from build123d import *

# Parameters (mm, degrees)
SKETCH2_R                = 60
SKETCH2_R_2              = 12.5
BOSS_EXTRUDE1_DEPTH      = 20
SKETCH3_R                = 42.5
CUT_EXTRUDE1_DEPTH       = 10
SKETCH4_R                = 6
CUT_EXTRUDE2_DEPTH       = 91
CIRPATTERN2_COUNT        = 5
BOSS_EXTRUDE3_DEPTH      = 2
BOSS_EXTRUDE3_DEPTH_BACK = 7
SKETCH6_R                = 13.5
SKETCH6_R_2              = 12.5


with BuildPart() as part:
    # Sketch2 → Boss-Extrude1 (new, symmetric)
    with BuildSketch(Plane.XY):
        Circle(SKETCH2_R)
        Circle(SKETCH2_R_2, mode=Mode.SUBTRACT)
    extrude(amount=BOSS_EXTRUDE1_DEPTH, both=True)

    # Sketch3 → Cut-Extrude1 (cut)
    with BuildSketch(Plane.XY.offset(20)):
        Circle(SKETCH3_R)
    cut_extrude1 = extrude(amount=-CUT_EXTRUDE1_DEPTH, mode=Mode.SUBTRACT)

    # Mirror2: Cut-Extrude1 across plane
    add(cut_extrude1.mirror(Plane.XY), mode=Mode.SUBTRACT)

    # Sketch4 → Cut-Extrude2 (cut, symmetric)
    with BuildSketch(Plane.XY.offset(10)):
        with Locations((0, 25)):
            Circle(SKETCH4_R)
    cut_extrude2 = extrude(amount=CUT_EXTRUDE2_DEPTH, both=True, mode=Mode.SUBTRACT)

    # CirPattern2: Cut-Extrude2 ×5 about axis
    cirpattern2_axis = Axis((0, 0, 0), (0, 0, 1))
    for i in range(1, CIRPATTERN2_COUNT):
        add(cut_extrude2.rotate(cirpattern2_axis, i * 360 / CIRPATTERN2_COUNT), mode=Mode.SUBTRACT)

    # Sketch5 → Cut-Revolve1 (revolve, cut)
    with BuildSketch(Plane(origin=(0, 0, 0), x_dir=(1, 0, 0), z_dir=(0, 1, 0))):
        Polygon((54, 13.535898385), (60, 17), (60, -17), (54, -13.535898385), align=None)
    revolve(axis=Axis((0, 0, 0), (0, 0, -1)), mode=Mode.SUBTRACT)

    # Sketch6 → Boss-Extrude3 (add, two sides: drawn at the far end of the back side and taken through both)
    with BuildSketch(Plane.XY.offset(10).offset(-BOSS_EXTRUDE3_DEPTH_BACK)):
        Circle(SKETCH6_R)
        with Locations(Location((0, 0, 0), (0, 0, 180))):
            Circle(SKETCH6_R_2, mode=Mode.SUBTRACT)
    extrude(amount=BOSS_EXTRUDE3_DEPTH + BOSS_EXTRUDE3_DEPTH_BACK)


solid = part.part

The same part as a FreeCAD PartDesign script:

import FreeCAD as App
import Part
import Sketcher
from FreeCAD import Vector
Q = App.Units.Quantity


def add_polygon(sketch, points):
    """Adds a closed chain of lines whose ends are joined by coincident constraints."""
    first, n = sketch.GeometryCount, len(points)
    for a, b in zip(points, points[1:] + points[:1]):
        sketch.addGeometry(Part.LineSegment(App.Vector(*a, 0), App.Vector(*b, 0)), False)
    for i in range(n):
        sketch.addConstraint(Sketcher.Constraint("Coincident", first + i, 2, first + (i + 1) % n, 1))

doc = App.newDocument("Part")
body = doc.addObject("PartDesign::Body", "Body")

# Sketch on XY plane
sketch1 = body.newObject("Sketcher::SketchObject", "Sketch")
sketch1.AttachmentSupport = (doc.getObject("XY_Plane"), [""])
sketch1.MapMode = "FlatFace"
sketch1.addGeometry(Part.Circle(Vector(0, 0, 0), Vector(0, 0, 1), 60), False)
sketch1.addGeometry(Part.Circle(Vector(0, 0, 0), Vector(0, 0, 1), 12), False)
sketch1.addConstraint(Sketcher.Constraint("Coincident", 0, 3, -1, 1))
sketch1.addConstraint(Sketcher.Constraint("Coincident", 1, 3, -1, 1))
sketch1.addConstraint(Sketcher.Constraint("Diameter", 0, Q("120 mm")))
sketch1.addConstraint(Sketcher.Constraint("Diameter", 1, Q("25 mm")))
pad1 = body.newObject("PartDesign::Pad", "Pad")
pad1.Profile = sketch1
pad1.Length = 40
pad1.Midplane = True

# Sketch on XY plane
sketch2 = body.newObject("Sketcher::SketchObject", "Sketch001")
sketch2.AttachmentSupport = (doc.getObject("XY_Plane"), [""])
sketch2.MapMode = "FlatFace"
sketch2.AttachmentOffset = App.Placement(Vector(0, 0, 20), App.Rotation())
sketch2.addGeometry(Part.Circle(Vector(0, 0, 0), Vector(0, 0, 1), 42), False)
sketch2.addConstraint(Sketcher.Constraint("Coincident", 0, 3, -1, 1))
sketch2.addConstraint(Sketcher.Constraint("Diameter", 0, Q("85 mm")))
pocket1 = body.newObject("PartDesign::Pocket", "Pocket")
pocket1.Profile = sketch2
pocket1.Length = 10
doc.recompute()

mirrored = body.newObject("PartDesign::Mirrored", "Mirrored")
mirrored.Originals = [pocket1]
mirrored.MirrorPlane = (doc.getObject("XY_Plane"), [""])
body.Tip = mirrored

# Sketch on XY plane
sketch3 = body.newObject("Sketcher::SketchObject", "Sketch002")
sketch3.AttachmentSupport = (doc.getObject("XY_Plane"), [""])
sketch3.MapMode = "FlatFace"
sketch3.AttachmentOffset = App.Placement(Vector(0, 0, 10), App.Rotation())
sketch3.addGeometry(Part.Circle(Vector(0, 25, 0), Vector(0, 0, 1), 6), False)
sketch3.addConstraint(Sketcher.Constraint("PointOnObject", 0, 3, -2))
sketch3.addConstraint(Sketcher.Constraint("Diameter", 0, Q("12 mm")))
sketch3.addConstraint(Sketcher.Constraint("DistanceY", -1, 1, 0, 3, Q("25 mm")))
pocket2 = body.newObject("PartDesign::Pocket", "Pocket001")
pocket2.Profile = sketch3
pocket2.Length = 182
pocket2.Midplane = True
doc.recompute()

polarpattern = body.newObject("PartDesign::PolarPattern", "PolarPattern")
polarpattern.Originals = [pocket2]
polarpattern.Axis = (doc.getObject("Z_Axis"), [""])
polarpattern.Angle = 360
polarpattern.Occurrences = 5
body.Tip = polarpattern

# Sketch on XZ plane
sketch4 = body.newObject("Sketcher::SketchObject", "Sketch003")
sketch4.AttachmentSupport = (doc.getObject("XZ_Plane"), [""])
sketch4.MapMode = "FlatFace"
add_polygon(sketch4, [(60, -17), (54, -14), (54, 14), (60, 17)])  # lines 0-3
sketch4.addConstraint(Sketcher.Constraint("Vertical", 1))
sketch4.addConstraint(Sketcher.Constraint("Vertical", 3))
sketch4.addConstraint(Sketcher.Constraint("Equal", 0, 2))
sketch4.addConstraint(Sketcher.Constraint("DistanceY", 3, 2, 3, 1, Q("34 mm")))
sketch4.addConstraint(Sketcher.Constraint("Angle", 0, Q("150 deg")))
sketch4.addConstraint(Sketcher.Constraint("DistanceX", -1, 1, 0, 2, Q("54 mm")))
sketch4.addConstraint(Sketcher.Constraint("DistanceX", -1, 1, 2, 2, Q("60 mm")))
sketch4.addConstraint(Sketcher.Constraint("DistanceY", -1, 1, 2, 2, Q("17 mm")))
groove = body.newObject("PartDesign::Groove", "Groove")
groove.Profile = sketch4
groove.ReferenceAxis = (sketch4, ["V_Axis"])
groove.Angle = 360

# Sketch on XY plane
sketch5 = body.newObject("Sketcher::SketchObject", "Sketch004")
sketch5.AttachmentSupport = (doc.getObject("XY_Plane"), [""])
sketch5.MapMode = "FlatFace"
sketch5.AttachmentOffset = App.Placement(Vector(0, 0, 10), App.Rotation())
sketch5.addGeometry(Part.Circle(Vector(0, 0, 0), Vector(0, 0, 1), 14), False)
sketch5.addGeometry(Part.Circle(Vector(0, 0, 0), Vector(0, 0, 1), 12), False)
sketch5.addConstraint(Sketcher.Constraint("Coincident", 0, 3, -1, 1))
sketch5.addConstraint(Sketcher.Constraint("Coincident", 1, 3, -1, 1))
sketch5.addConstraint(Sketcher.Constraint("Diameter", 0, Q("27 mm")))
sketch5.addConstraint(Sketcher.Constraint("Diameter", 1, Q("25 mm")))
pad2 = body.newObject("PartDesign::Pad", "Pad001")
pad2.Profile = sketch5
pad2.Type = "TwoLengths"
pad2.Length = 2
pad2.Length2 = 7

doc.recompute()
